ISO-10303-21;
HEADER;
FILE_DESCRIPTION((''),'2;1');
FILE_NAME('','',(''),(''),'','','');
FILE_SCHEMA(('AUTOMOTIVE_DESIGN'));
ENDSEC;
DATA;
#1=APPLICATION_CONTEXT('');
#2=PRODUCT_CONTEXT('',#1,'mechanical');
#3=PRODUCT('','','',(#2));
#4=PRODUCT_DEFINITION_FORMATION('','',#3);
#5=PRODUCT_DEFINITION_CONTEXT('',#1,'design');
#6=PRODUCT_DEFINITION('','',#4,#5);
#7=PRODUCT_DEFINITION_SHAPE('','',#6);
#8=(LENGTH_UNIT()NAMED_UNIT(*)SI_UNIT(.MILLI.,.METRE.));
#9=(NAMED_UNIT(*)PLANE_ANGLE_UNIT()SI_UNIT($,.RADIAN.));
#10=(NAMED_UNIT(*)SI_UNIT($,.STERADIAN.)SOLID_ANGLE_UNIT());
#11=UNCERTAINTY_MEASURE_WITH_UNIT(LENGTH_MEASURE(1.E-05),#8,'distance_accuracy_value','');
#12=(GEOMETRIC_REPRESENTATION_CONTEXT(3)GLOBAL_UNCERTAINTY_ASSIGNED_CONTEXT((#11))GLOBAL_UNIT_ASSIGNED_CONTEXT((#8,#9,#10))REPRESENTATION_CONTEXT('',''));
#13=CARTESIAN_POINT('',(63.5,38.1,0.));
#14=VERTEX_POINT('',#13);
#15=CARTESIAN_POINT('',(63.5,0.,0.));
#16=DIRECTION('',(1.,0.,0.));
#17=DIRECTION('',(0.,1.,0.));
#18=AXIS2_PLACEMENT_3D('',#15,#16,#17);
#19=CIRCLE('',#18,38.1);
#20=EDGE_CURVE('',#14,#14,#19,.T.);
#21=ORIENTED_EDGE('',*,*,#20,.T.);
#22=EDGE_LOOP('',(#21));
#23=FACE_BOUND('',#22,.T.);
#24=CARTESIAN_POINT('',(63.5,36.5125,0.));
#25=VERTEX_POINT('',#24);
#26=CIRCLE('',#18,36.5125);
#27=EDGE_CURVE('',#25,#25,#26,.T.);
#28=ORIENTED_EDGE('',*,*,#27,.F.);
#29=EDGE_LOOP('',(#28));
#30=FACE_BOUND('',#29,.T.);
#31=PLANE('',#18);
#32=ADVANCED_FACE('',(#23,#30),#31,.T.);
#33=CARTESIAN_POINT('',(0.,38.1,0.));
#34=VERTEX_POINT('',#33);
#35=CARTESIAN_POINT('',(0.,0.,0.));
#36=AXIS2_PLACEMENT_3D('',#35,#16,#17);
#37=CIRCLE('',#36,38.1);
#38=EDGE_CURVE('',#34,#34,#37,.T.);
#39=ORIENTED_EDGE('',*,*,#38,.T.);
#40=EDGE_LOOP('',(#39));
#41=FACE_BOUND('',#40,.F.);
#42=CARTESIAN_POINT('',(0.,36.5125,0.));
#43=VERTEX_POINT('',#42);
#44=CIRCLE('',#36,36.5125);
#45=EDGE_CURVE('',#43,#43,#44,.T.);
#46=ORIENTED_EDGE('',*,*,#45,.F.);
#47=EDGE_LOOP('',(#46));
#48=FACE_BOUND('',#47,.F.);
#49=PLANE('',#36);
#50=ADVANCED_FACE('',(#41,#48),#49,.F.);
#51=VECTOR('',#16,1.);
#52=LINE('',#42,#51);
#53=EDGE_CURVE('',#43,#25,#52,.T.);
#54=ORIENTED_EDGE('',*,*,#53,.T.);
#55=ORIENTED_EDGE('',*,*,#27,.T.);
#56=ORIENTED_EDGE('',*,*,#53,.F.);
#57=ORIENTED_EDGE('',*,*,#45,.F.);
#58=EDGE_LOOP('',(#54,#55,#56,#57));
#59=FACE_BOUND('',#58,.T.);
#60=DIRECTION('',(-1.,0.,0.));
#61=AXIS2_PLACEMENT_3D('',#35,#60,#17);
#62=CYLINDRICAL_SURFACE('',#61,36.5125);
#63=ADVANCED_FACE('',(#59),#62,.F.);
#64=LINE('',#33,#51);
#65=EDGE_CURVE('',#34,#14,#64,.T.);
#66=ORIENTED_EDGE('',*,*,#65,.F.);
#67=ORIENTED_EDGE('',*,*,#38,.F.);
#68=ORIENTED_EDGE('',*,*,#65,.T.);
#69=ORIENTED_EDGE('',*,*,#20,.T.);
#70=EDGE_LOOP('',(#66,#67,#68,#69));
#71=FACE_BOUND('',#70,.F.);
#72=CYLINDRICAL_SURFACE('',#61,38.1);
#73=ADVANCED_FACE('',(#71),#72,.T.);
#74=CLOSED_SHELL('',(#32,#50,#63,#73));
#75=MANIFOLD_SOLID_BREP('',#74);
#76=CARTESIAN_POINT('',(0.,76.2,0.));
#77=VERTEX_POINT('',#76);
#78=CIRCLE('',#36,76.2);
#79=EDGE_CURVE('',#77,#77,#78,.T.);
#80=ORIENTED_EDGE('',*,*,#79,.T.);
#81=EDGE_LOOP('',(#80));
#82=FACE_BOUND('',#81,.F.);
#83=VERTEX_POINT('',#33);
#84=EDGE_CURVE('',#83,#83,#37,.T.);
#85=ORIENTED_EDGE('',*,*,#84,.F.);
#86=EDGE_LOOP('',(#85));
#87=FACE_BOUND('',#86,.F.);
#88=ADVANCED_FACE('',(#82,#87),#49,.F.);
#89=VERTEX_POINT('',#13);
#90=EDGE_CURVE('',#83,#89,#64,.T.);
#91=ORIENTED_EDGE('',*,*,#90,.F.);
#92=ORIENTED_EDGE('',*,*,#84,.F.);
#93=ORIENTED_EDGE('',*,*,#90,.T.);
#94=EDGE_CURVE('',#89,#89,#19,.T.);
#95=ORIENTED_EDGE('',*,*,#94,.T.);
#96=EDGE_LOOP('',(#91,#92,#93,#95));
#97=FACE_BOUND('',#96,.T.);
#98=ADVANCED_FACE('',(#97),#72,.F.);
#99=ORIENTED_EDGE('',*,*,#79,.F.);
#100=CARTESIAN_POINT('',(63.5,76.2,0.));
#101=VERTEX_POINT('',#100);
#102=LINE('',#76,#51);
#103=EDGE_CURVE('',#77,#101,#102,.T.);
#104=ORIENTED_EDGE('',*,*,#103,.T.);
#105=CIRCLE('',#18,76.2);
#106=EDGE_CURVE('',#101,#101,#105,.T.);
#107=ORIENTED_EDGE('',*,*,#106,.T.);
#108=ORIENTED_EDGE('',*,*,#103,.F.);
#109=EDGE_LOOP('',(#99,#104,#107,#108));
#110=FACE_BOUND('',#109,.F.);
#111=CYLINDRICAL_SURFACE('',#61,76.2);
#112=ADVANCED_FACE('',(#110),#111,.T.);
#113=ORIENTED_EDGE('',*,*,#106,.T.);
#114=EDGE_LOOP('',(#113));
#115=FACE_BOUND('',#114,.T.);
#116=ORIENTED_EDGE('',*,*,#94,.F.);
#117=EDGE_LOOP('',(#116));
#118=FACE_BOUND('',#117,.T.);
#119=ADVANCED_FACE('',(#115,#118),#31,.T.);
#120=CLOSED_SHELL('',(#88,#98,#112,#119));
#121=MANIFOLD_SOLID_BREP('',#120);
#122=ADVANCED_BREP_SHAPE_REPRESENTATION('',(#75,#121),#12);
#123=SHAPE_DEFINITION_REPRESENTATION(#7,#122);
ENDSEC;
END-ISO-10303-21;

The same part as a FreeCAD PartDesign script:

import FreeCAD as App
import Part
import Sketcher
Q = App.Units.Quantity

doc = App.newDocument("Part")
body = doc.addObject("PartDesign::Body", "Body")

sketch1 = doc.addObject("Sketcher::SketchObject", "Sketch")
body.addObject(sketch1)
sketch1.AttachmentSupport = (doc.YZ_Plane, [""])
sketch1.MapMode = "FlatFace"
sketch1.addGeometry([
    Part.Circle(App.Vector(0, 0, 0), App.Vector(0, 0, 1), 76),
    Part.Circle(App.Vector(0, 0, 0), App.Vector(0, 0, 1), 38),
], False)
sketch1.addConstraint([
    Sketcher.Constraint("Coincident", 0, 3, -1, 1),
    Sketcher.Constraint("Coincident", 1, 3, -1, 1),
    Sketcher.Constraint("Diameter", 0, Q("6 in")),
    Sketcher.Constraint("Diameter", 1, Q("3 in")),
])
pad1 = doc.addObject("PartDesign::Pad", "Pad")
body.addObject(pad1)
pad1.Profile = sketch1
pad1.Length = Q("2.5 in")
body2 = doc.addObject("PartDesign::Body", "Body001")

sketch2 = doc.addObject("Sketcher::SketchObject", "Sketch001")
body2.addObject(sketch2)
sketch2.AttachmentSupport = (doc.getObject("YZ_Plane001"), [""])
sketch2.MapMode = "FlatFace"
sketch2.addGeometry([
    Part.Circle(App.Vector(0, 0, 0), App.Vector(0, 0, 1), 38),
    Part.Circle(App.Vector(0, 0, 0), App.Vector(0, 0, 1), 37),
], False)
sketch2.addConstraint([
    Sketcher.Constraint("Coincident", 0, 3, -1, 1),
    Sketcher.Constraint("Coincident", 1, 3, -1, 1),
    Sketcher.Constraint("Diameter", 0, Q("3 in")),
    Sketcher.Constraint("Diameter", 1, Q("2.875 in")),
])
pad2 = doc.addObject("PartDesign::Pad", "Pad001")
body2.addObject(pad2)
pad2.Profile = sketch2
pad2.Length = Q("2.5 in")

doc.recompute()
